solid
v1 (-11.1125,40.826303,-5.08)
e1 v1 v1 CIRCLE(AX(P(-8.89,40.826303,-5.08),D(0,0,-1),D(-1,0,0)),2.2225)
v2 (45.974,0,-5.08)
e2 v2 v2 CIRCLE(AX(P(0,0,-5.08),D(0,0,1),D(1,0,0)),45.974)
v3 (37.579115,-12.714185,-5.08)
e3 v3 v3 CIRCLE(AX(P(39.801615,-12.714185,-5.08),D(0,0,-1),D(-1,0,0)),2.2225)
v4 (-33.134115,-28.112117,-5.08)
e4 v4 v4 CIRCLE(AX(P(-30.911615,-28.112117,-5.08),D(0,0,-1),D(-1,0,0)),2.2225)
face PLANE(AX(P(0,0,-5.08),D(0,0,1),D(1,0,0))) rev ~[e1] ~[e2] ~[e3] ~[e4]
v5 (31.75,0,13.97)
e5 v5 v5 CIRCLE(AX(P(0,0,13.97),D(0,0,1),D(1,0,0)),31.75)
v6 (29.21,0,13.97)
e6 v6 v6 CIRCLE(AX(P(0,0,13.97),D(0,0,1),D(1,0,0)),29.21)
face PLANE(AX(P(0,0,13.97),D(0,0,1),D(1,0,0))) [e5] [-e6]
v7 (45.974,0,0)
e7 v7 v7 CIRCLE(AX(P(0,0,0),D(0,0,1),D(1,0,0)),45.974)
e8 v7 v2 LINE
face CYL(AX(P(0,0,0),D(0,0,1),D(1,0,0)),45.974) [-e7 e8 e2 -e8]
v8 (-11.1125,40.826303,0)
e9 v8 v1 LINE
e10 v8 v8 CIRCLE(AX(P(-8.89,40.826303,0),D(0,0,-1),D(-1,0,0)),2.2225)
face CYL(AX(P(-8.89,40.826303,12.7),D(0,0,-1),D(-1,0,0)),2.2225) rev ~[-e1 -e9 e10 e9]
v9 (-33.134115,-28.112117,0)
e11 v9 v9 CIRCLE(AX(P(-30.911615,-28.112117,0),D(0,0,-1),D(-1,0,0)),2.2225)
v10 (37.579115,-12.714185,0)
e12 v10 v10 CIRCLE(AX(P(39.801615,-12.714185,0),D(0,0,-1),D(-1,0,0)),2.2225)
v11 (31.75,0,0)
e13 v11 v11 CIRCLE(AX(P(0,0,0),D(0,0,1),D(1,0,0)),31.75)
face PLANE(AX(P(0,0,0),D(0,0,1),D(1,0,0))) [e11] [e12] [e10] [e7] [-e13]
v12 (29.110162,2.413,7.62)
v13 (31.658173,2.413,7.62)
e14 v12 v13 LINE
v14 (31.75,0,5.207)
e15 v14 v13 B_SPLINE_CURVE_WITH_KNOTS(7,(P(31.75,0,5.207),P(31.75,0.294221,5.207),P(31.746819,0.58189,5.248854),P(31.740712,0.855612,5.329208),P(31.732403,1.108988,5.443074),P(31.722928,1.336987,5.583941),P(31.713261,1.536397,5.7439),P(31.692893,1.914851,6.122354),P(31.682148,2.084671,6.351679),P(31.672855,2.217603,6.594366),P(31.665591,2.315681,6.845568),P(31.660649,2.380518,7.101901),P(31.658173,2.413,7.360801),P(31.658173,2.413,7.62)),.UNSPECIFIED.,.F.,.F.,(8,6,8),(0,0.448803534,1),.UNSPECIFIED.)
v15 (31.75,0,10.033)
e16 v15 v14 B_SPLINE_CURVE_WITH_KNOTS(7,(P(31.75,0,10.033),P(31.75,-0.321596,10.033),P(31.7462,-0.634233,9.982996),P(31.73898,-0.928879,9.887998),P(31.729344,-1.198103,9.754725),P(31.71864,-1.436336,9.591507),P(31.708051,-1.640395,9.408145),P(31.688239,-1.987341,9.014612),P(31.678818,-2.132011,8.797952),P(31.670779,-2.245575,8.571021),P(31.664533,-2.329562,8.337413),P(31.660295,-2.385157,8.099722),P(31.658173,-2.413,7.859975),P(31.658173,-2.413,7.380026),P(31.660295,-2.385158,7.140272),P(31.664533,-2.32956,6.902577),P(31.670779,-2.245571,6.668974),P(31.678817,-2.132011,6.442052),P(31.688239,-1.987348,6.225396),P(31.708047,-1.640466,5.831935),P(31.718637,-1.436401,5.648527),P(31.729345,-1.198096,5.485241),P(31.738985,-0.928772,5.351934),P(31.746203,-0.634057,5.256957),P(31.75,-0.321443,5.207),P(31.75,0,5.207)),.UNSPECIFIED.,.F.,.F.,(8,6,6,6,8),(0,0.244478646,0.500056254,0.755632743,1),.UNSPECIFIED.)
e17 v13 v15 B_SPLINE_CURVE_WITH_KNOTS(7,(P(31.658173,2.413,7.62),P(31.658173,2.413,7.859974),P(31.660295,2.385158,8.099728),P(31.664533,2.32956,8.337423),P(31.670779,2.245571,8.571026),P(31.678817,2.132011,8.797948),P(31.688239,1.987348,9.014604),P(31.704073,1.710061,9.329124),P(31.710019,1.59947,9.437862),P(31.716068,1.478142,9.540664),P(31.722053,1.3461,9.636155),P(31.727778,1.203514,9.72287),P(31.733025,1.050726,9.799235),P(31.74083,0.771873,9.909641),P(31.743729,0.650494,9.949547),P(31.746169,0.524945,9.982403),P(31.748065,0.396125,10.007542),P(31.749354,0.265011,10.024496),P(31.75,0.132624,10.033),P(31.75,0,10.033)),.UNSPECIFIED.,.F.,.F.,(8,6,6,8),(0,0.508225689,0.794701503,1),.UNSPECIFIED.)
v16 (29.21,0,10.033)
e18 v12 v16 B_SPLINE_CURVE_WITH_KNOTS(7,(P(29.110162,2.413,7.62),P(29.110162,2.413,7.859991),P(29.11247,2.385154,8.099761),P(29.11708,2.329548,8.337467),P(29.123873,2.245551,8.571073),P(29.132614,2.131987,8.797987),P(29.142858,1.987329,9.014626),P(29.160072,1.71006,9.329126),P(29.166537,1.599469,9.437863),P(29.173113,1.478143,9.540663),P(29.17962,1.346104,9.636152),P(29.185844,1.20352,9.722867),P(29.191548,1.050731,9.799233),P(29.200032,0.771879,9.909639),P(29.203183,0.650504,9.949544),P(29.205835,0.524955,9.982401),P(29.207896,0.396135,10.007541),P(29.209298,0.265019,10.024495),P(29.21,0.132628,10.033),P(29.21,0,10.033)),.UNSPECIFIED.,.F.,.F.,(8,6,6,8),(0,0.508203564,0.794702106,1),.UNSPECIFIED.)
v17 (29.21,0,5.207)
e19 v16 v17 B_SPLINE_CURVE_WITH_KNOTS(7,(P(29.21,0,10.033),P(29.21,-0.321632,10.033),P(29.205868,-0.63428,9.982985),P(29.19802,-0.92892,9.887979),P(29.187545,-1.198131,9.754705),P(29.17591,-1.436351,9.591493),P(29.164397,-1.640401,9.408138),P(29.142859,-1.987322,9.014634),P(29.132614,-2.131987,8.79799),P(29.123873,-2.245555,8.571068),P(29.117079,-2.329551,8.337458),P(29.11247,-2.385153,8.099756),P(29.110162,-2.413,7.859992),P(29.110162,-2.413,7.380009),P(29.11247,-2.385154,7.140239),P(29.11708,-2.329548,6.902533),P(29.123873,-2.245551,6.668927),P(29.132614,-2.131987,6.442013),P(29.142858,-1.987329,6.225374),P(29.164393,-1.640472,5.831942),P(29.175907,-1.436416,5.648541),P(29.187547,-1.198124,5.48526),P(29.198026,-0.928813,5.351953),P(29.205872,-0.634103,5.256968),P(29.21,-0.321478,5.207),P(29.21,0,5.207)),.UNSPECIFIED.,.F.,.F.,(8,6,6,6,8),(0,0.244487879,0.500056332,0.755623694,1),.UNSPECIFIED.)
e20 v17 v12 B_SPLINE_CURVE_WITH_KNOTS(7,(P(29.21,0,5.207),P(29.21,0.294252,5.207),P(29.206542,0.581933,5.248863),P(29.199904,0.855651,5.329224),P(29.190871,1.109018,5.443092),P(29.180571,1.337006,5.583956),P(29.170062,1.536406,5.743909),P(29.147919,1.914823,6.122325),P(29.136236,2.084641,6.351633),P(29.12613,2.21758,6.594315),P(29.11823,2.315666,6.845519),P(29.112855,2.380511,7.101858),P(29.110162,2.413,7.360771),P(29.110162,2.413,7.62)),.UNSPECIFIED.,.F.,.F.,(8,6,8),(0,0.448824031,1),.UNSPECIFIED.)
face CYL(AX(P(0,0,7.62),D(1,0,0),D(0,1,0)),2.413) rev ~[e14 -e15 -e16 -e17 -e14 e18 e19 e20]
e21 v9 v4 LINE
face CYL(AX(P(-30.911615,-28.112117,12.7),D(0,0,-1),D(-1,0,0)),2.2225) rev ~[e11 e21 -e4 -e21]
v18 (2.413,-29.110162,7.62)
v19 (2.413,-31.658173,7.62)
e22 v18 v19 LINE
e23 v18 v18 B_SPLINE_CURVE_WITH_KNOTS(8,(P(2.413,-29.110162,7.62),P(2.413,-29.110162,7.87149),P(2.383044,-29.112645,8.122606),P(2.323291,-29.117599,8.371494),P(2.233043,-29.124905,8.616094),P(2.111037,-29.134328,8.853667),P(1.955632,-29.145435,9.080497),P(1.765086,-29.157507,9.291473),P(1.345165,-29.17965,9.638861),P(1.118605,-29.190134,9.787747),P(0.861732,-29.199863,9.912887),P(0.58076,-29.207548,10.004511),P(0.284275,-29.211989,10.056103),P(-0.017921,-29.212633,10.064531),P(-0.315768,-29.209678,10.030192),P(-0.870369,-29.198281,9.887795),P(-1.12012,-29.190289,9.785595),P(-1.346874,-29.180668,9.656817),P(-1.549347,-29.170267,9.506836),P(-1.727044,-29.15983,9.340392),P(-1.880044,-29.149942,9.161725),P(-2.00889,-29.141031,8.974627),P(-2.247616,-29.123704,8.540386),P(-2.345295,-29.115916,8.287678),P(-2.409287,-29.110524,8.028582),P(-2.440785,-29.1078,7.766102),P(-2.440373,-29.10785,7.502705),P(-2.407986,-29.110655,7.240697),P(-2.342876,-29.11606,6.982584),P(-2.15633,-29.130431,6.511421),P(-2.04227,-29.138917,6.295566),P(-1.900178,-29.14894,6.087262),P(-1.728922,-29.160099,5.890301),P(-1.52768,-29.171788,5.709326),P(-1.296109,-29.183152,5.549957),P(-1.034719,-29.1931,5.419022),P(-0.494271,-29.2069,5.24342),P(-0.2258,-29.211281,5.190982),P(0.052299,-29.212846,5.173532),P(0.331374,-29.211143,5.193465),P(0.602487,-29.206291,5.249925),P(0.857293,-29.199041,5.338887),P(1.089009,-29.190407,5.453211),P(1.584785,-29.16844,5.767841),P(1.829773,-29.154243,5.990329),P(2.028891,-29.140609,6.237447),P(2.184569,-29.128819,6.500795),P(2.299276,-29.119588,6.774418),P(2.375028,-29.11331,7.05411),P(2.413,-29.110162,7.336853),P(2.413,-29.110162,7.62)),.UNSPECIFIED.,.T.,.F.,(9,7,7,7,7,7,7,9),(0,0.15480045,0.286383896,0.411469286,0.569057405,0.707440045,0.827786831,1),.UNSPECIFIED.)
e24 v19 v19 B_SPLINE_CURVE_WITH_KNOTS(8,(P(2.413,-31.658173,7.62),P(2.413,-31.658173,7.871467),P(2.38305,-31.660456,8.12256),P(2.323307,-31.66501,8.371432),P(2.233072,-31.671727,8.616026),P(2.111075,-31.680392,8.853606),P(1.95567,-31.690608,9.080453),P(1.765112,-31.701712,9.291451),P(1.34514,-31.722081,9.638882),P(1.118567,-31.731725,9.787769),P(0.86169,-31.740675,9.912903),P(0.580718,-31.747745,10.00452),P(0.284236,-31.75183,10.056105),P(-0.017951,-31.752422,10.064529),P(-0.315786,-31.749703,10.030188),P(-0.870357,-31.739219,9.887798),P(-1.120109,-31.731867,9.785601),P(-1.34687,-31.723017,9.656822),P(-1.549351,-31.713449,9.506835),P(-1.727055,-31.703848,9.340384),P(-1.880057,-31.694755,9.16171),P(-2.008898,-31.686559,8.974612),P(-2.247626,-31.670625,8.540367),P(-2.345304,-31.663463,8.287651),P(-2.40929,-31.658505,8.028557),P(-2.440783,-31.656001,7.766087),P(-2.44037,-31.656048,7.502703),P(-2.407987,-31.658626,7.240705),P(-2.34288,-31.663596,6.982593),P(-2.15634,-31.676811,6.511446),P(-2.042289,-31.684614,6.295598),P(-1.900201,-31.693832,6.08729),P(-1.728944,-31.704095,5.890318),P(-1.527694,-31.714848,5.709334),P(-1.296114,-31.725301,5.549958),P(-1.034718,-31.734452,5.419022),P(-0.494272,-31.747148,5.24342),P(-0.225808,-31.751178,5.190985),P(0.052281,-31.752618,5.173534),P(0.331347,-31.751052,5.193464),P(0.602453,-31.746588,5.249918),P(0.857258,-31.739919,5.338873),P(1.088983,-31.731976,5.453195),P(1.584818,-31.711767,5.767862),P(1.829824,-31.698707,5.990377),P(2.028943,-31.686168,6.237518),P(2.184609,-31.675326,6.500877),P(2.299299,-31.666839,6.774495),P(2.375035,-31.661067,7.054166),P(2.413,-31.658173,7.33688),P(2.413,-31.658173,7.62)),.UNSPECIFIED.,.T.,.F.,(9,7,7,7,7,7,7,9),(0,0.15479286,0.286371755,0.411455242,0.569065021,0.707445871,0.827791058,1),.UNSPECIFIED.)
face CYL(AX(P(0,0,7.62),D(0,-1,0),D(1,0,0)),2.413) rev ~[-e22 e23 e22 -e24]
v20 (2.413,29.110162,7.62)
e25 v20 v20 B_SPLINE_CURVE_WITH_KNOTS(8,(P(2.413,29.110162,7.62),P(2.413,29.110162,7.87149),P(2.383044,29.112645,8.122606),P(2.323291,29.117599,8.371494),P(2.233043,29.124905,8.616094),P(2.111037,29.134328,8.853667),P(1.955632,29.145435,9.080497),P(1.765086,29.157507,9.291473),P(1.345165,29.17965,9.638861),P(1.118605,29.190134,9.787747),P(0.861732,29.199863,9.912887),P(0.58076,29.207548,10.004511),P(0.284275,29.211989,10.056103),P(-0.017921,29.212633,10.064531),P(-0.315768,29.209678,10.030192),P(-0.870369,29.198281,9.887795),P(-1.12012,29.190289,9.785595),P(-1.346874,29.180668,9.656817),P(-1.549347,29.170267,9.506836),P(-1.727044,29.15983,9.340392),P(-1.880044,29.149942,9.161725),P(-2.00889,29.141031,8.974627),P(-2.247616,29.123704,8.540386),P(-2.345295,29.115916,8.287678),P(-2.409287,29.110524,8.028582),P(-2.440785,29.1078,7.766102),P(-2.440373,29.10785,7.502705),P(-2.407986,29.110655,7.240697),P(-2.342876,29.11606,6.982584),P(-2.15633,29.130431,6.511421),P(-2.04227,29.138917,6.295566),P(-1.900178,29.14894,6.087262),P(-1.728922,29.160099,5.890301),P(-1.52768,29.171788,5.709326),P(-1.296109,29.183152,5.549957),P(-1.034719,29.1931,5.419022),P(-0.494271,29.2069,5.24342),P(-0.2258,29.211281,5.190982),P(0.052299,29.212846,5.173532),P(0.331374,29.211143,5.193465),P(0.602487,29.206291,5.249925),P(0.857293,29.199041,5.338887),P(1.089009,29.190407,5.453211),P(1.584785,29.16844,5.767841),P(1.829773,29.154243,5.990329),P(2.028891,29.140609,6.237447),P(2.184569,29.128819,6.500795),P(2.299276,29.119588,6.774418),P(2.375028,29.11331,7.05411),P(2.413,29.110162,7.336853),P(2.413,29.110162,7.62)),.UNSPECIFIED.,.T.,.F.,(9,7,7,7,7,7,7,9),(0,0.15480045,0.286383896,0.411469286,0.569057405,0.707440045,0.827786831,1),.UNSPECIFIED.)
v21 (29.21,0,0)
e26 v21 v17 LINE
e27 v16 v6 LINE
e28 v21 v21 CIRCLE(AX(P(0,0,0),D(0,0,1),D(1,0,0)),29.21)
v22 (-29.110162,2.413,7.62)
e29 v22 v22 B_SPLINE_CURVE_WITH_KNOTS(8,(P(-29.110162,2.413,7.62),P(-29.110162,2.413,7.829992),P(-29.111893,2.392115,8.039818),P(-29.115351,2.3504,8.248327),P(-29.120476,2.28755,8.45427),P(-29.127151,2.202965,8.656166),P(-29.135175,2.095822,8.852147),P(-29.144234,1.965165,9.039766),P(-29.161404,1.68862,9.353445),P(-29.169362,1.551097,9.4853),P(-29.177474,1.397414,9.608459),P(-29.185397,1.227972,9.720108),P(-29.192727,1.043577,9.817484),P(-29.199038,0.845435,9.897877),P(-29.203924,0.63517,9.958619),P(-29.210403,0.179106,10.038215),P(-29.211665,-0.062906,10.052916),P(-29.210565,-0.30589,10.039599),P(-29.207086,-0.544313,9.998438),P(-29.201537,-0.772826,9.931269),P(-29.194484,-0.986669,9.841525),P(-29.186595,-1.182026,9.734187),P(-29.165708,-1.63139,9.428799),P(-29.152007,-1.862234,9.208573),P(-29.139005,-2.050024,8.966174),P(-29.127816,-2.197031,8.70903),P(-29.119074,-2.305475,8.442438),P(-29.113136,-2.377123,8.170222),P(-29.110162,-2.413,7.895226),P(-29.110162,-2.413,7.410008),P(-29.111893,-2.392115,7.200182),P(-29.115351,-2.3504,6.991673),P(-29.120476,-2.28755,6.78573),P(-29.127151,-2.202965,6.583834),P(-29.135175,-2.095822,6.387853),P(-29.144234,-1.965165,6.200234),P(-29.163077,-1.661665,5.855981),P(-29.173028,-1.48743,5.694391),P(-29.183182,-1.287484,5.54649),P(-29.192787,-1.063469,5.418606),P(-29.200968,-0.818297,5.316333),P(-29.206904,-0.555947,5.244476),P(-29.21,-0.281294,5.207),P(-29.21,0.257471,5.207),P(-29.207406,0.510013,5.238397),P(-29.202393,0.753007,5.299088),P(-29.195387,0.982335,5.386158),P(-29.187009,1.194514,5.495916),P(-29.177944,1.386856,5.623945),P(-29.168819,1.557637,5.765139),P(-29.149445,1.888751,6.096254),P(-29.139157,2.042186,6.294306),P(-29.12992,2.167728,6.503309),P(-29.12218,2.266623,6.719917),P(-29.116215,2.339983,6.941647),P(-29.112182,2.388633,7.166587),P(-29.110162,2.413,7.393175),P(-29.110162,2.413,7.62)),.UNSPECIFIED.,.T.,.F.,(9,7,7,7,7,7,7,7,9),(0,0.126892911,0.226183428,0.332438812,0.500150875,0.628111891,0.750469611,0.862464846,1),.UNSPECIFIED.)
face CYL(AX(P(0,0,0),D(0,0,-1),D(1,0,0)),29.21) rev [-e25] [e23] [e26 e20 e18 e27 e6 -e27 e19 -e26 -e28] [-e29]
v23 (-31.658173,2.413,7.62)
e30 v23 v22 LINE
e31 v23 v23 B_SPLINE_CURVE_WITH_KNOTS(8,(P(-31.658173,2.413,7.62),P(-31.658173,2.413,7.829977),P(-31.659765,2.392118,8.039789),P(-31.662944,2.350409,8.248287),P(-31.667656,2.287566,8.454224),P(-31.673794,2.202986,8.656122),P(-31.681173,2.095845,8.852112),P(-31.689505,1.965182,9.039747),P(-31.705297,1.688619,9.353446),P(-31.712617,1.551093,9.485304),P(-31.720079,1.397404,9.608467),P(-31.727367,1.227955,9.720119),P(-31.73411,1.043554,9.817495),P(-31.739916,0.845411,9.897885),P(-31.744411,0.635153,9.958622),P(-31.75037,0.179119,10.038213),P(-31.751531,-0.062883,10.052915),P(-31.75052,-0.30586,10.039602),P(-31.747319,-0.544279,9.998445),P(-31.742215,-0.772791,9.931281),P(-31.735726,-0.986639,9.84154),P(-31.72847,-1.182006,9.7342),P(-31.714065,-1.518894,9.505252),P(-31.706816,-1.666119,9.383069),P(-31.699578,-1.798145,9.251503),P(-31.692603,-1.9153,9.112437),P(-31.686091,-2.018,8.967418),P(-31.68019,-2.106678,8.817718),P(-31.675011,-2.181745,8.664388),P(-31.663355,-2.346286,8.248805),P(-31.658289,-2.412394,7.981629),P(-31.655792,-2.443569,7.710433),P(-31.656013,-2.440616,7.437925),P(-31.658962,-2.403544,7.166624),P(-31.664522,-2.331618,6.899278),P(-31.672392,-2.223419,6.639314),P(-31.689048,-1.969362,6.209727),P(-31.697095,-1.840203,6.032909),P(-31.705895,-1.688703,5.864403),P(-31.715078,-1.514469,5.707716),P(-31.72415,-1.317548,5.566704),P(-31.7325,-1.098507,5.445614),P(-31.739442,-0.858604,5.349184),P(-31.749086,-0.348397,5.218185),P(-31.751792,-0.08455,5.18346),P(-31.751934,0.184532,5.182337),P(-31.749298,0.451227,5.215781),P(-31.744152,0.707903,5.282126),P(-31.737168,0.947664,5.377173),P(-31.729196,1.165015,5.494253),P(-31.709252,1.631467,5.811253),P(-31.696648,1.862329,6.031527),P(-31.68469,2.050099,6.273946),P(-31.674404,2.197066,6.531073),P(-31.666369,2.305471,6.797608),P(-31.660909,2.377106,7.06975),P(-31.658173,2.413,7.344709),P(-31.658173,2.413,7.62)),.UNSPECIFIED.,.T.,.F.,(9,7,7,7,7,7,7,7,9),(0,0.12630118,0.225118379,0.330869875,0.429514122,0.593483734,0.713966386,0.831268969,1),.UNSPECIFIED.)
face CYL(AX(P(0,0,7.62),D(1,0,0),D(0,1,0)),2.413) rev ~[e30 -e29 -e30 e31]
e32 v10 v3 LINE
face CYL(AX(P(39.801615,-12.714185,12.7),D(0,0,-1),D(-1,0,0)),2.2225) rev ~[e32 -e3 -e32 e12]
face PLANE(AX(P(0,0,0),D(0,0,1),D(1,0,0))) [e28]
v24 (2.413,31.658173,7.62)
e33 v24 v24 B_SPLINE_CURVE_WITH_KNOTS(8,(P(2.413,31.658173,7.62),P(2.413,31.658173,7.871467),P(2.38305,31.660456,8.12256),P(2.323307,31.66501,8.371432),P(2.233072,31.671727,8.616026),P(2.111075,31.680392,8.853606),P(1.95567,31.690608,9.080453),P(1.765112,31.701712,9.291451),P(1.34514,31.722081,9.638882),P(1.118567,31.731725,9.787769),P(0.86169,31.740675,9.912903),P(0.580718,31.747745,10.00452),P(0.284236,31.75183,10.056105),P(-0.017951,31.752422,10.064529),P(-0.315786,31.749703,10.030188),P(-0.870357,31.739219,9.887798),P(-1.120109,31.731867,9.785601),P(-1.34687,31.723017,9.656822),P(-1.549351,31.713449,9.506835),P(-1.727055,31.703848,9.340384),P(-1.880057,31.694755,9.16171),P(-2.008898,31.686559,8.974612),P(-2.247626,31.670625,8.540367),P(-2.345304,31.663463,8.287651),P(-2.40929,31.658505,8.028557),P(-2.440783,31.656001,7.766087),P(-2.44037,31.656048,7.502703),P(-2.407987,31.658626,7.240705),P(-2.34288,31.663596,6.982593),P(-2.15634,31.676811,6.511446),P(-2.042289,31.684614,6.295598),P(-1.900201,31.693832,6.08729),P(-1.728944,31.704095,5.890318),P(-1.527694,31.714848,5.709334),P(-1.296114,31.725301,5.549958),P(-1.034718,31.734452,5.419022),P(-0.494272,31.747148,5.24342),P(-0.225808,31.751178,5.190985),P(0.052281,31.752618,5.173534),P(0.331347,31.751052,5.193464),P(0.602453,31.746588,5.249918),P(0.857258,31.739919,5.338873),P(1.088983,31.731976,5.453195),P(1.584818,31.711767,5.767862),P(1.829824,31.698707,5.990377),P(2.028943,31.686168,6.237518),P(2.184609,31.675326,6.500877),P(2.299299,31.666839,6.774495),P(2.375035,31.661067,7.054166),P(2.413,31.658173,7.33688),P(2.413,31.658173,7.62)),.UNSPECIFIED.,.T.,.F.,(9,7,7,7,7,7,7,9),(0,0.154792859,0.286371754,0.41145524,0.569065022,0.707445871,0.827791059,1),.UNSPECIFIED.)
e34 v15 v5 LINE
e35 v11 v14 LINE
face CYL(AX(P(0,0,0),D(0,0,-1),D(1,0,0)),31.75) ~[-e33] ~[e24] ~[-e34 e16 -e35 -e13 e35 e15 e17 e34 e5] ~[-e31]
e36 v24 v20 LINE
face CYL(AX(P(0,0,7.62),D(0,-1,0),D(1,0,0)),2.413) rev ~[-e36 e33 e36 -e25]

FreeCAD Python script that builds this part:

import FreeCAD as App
import Part
import Sketcher

V = App.Vector
Q = App.Units.Quantity

doc = App.newDocument("Part")
body = doc.addObject("PartDesign::Body", "Body")

# Sketch on XY plane
sketch1 = doc.addObject("Sketcher::SketchObject", "Sketch")
body.addObject(sketch1)
sketch1.AttachmentSupport = (doc.XY_Plane, [""])
sketch1.MapMode = "FlatFace"
sketch1.addGeometry([
    Part.Circle(V(0, 0, 0), V(0, 0, 1), 32),
    Part.Circle(V(0, 0, 0), V(0, 0, 1), 29),
], False)
sketch1.addConstraint([
    Sketcher.Constraint("Coincident", 0, 3, -1, 1),
    Sketcher.Constraint("Coincident", 1, 3, -1, 1),
    Sketcher.Constraint("Diameter", 0, Q("2.5 in")),
    Sketcher.Constraint("Diameter", 1, Q("2.3 in")),
])
pad1 = doc.addObject("PartDesign::Pad", "Pad")
body.addObject(pad1)
pad1.Profile = sketch1
pad1.Length = Q("0.55 in")

# Sketch on XY plane
sketch2 = doc.addObject("Sketcher::SketchObject", "Sketch001")
body.addObject(sketch2)
sketch2.AttachmentSupport = (doc.XY_Plane, [""])
sketch2.MapMode = "FlatFace"
sketch2.addGeometry(Part.Circle(V(0, 0, 0), V(0, 0, 1), 46), False)
sketch2.addConstraint([
    Sketcher.Constraint("Coincident", 0, 3, -1, 1),
    Sketcher.Constraint("Diameter", 0, Q("3.62 in")),
])
pad2 = doc.addObject("PartDesign::Pad", "Pad001")
body.addObject(pad2)
pad2.Profile = sketch2
pad2.Length = Q("0.2 in")
pad2.Reversed = True

# Sketch on XZ plane
sketch3 = doc.addObject("Sketcher::SketchObject", "Sketch002")
body.addObject(sketch3)
sketch3.AttachmentSupport = (doc.XZ_Plane, [""])
sketch3.MapMode = "FlatFace"
sketch3.addGeometry(Part.Circle(V(0, 7.6, 0), V(0, 0, 1), 2.4), False)
sketch3.addConstraint([
    Sketcher.Constraint("PointOnObject", 0, 3, -2),
    Sketcher.Constraint("Diameter", 0, Q("0.19 in")),
    Sketcher.Constraint("DistanceY", -1, 1, 0, 3, Q("0.3 in")),
])
pocket1 = doc.addObject("PartDesign::Pocket", "Pocket")
body.addObject(pocket1)
pocket1.Profile = sketch3
pocket1.Length = Q("3 in")
pocket1.Midplane = True

# Sketch on XY plane
sketch4 = doc.addObject("Sketcher::SketchObject", "Sketch003")
body.addObject(sketch4)
sketch4.AttachmentSupport = (doc.XY_Plane, [""])
sketch4.MapMode = "FlatFace"
sketch4.addGeometry([
    Part.Circle(V(-8.9, 40.8, 0), V(0, 0, 1), 2.2),
    Part.Circle(V(-30.9, -28.1, 0), V(0, 0, 1), 2.2),
    Part.Circle(V(39.8, -12.7, 0), V(0, 0, 1), 2.2),
], False)
sketch4.addConstraint([
    Sketcher.Constraint("Equal", 0, 1),
    Sketcher.Constraint("Equal", 1, 2),
    Sketcher.Constraint("Diameter", 0, Q("0.175 in")),
    Sketcher.Constraint("DistanceX", 0, 3, -1, 1, Q("0.35 in")),
    Sketcher.Constraint("DistanceY", 1, 3, 0, 3, Q("68.93842 mm")),
    Sketcher.Constraint("DistanceX", 1, 3, 2, 3, Q("70.71323 mm")),
    Sketcher.Constraint("DistanceY", 2, 3, 0, 3, Q("53.540488 mm")),
    Sketcher.Constraint("DistanceY", -1, 1, 0, 3, Q("40.826303 mm")),
    Sketcher.Constraint("DistanceX", 1, 3, -1, 1, Q("30.911615 mm")),
])
doc.recompute()
hole = doc.addObject("PartDesign::Hole", "Hole")
body.addObject(hole)
hole.Profile = sketch4
hole.ThreadType = "None"
hole.Diameter = Q("0.175 in")
hole.DepthType = "Dimension"
hole.Depth = Q("0.5 in")
hole.DrillPoint = "Flat"

# Sketch on YZ plane
sketch5 = doc.addObject("Sketcher::SketchObject", "Sketch004")
body.addObject(sketch5)
sketch5.AttachmentSupport = (doc.YZ_Plane, [""])
sketch5.MapMode = "FlatFace"
sketch5.addGeometry(Part.Circle(V(0, 7.6, 0), V(0, 0, 1), 2.4), False)
sketch5.addConstraint([
    Sketcher.Constraint("PointOnObject", 0, 3, -2),
    Sketcher.Constraint("Diameter", 0, Q("0.19 in")),
    Sketcher.Constraint("DistanceY", -1, 1, 0, 3, Q("0.3 in")),
])
pocket2 = doc.addObject("PartDesign::Pocket", "Pocket001")
body.addObject(pocket2)
pocket2.Profile = sketch5
pocket2.Length = Q("4 in")
pocket2.Midplane = True

doc.recompute()
